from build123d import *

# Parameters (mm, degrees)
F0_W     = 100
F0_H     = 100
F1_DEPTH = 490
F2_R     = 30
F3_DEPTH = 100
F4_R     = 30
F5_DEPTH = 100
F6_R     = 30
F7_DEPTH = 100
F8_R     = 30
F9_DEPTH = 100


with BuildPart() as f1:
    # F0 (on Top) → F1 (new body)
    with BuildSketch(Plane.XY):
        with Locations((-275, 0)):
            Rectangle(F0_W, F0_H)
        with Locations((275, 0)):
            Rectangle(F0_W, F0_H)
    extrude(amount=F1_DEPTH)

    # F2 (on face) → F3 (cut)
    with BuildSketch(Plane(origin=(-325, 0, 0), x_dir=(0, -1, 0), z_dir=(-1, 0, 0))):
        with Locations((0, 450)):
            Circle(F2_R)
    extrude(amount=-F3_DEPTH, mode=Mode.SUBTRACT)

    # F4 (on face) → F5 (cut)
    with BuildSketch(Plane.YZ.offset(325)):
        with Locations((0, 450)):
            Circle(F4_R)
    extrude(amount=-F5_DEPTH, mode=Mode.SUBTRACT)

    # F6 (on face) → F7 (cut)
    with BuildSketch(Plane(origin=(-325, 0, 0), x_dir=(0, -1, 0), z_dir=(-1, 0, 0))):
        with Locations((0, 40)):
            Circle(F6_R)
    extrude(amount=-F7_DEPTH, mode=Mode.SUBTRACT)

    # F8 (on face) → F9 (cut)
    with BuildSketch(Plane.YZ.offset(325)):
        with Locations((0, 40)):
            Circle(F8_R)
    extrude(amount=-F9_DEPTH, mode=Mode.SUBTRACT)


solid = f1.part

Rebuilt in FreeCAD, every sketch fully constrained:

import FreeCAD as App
import Part
import Sketcher

V = App.Vector

doc = App.newDocument("Part")
body = doc.addObject("PartDesign::Body", "Body")
body.AllowCompound = True

# Sketch on XY plane
sketch1 = body.newObject("Sketcher::SketchObject", "Sketch")
sketch1.AttachmentSupport = (doc.getObject("XY_Plane"), [""])
sketch1.MapMode = "FlatFace"
sketch1.addGeometry(Part.LineSegment(V(-325, 50, 0), V(-325, -50, 0)), False)
sketch1.addGeometry(Part.LineSegment(V(-325, -50, 0), V(-225, -50, 0)), False)
sketch1.addGeometry(Part.LineSegment(V(-225, -50, 0), V(-225, 50, 0)), False)
sketch1.addGeometry(Part.LineSegment(V(-225, 50, 0), V(-325, 50, 0)), False)
sketch1.addGeometry(Part.LineSegment(V(225, 50, 0), V(225, -50, 0)), False)
sketch1.addGeometry(Part.LineSegment(V(225, -50, 0), V(325, -50, 0)), False)
sketch1.addGeometry(Part.LineSegment(V(325, -50, 0), V(325, 50, 0)), False)
sketch1.addGeometry(Part.LineSegment(V(325, 50, 0), V(225, 50, 0)), False)
sketch1.addConstraint(Sketcher.Constraint("Coincident", 0, 2, 1, 1))
sketch1.addConstraint(Sketcher.Constraint("Coincident", 1, 2, 2, 1))
sketch1.addConstraint(Sketcher.Constraint("Coincident", 2, 2, 3, 1))
sketch1.addConstraint(Sketcher.Constraint("Coincident", 3, 2, 0, 1))
sketch1.addConstraint(Sketcher.Constraint("Coincident", 4, 2, 5, 1))
sketch1.addConstraint(Sketcher.Constraint("Coincident", 5, 2, 6, 1))
sketch1.addConstraint(Sketcher.Constraint("Coincident", 6, 2, 7, 1))
sketch1.addConstraint(Sketcher.Constraint("Coincident", 7, 2, 4, 1))
sketch1.addConstraint(Sketcher.Constraint("Vertical", 0))
sketch1.addConstraint(Sketcher.Constraint("Horizontal", 1))
sketch1.addConstraint(Sketcher.Constraint("Vertical", 2))
sketch1.addConstraint(Sketcher.Constraint("Horizontal", 3))
sketch1.addConstraint(Sketcher.Constraint("Vertical", 4))
sketch1.addConstraint(Sketcher.Constraint("Horizontal", 5))
sketch1.addConstraint(Sketcher.Constraint("Vertical", 6))
sketch1.addConstraint(Sketcher.Constraint("Horizontal", 7))
sketch1.addConstraint(Sketcher.Constraint("Symmetric", 2, 2, 4, 2, -1, 1))
sketch1.addConstraint(Sketcher.Constraint("Symmetric", 0, 2, 6, 2, -1, 1))
sketch1.addConstraint(Sketcher.Constraint("Horizontal", 1, 2, 4, 2))
sketch1.addConstraint(Sketcher.Constraint("Equal", 7, 0))
sketch1.addConstraint(Sketcher.Constraint("DistanceX", 1, 1, 1, 2, 100.0))
sketch1.addConstraint(Sketcher.Constraint("DistanceX", 0, 2, -1, 1, 325.0))
pad1 = body.newObject("PartDesign::Pad", "Pad")
pad1.Profile = sketch1
pad1.Length = 490

# Sketch on YZ plane
sketch2 = body.newObject("Sketcher::SketchObject", "Sketch001")
sketch2.AttachmentSupport = (doc.getObject("YZ_Plane"), [""])
sketch2.MapMode = "FlatFace"
sketch2.AttachmentOffset = App.Placement(V(0, 0, -325), App.Rotation())
sketch2.addGeometry(Part.Circle(V(0, 450, 0), V(0, 0, 1), 30), False)
sketch2.addConstraint(Sketcher.Constraint("PointOnObject", 0, 3, -2))
sketch2.addConstraint(Sketcher.Constraint("Diameter", 0, 60.0))
sketch2.addConstraint(Sketcher.Constraint("DistanceY", -1, 1, 0, 3, 450.0))
pocket1 = body.newObject("PartDesign::Pocket", "Pocket")
pocket1.Profile = sketch2
pocket1.Length = 100
pocket1.Reversed = True

# Sketch on YZ plane
sketch3 = body.newObject("Sketcher::SketchObject", "Sketch002")
sketch3.AttachmentSupport = (doc.getObject("YZ_Plane"), [""])
sketch3.MapMode = "FlatFace"
sketch3.AttachmentOffset = App.Placement(V(0, 0, 325), App.Rotation())
sketch3.addGeometry(Part.Circle(V(0, 450, 0), V(0, 0, 1), 30), False)
sketch3.addConstraint(Sketcher.Constraint("PointOnObject", 0, 3, -2))
sketch3.addConstraint(Sketcher.Constraint("Diameter", 0, 60.0))
sketch3.addConstraint(Sketcher.Constraint("DistanceY", -1, 1, 0, 3, 450.0))
pocket2 = body.newObject("PartDesign::Pocket", "Pocket001")
pocket2.Profile = sketch3
pocket2.Length = 100

# Sketch on YZ plane
sketch4 = body.newObject("Sketcher::SketchObject", "Sketch003")
sketch4.AttachmentSupport = (doc.getObject("YZ_Plane"), [""])
sketch4.MapMode = "FlatFace"
sketch4.AttachmentOffset = App.Placement(V(0, 0, -325), App.Rotation())
sketch4.addGeometry(Part.Circle(V(0, 40, 0), V(0, 0, 1), 30), False)
sketch4.addConstraint(Sketcher.Constraint("PointOnObject", 0, 3, -2))
sketch4.addConstraint(Sketcher.Constraint("Diameter", 0, 60.0))
sketch4.addConstraint(Sketcher.Constraint("DistanceY", -1, 1, 0, 3, 40.0))
pocket3 = body.newObject("PartDesign::Pocket", "Pocket002")
pocket3.Profile = sketch4
pocket3.Length = 100
pocket3.Reversed = True

# Sketch on YZ plane
sketch5 = body.newObject("Sketcher::SketchObject", "Sketch004")
sketch5.AttachmentSupport = (doc.getObject("YZ_Plane"), [""])
sketch5.MapMode = "FlatFace"
sketch5.AttachmentOffset = App.Placement(V(0, 0, 325), App.Rotation())
sketch5.addGeometry(Part.Circle(V(0, 40, 0), V(0, 0, 1), 30), False)
sketch5.addConstraint(Sketcher.Constraint("PointOnObject", 0, 3, -2))
sketch5.addConstraint(Sketcher.Constraint("Diameter", 0, 60.0))
sketch5.addConstraint(Sketcher.Constraint("DistanceY", -1, 1, 0, 3, 40.0))
pocket4 = body.newObject("PartDesign::Pocket", "Pocket003")
pocket4.Profile = sketch5
pocket4.Length = 100

doc.recompute()
